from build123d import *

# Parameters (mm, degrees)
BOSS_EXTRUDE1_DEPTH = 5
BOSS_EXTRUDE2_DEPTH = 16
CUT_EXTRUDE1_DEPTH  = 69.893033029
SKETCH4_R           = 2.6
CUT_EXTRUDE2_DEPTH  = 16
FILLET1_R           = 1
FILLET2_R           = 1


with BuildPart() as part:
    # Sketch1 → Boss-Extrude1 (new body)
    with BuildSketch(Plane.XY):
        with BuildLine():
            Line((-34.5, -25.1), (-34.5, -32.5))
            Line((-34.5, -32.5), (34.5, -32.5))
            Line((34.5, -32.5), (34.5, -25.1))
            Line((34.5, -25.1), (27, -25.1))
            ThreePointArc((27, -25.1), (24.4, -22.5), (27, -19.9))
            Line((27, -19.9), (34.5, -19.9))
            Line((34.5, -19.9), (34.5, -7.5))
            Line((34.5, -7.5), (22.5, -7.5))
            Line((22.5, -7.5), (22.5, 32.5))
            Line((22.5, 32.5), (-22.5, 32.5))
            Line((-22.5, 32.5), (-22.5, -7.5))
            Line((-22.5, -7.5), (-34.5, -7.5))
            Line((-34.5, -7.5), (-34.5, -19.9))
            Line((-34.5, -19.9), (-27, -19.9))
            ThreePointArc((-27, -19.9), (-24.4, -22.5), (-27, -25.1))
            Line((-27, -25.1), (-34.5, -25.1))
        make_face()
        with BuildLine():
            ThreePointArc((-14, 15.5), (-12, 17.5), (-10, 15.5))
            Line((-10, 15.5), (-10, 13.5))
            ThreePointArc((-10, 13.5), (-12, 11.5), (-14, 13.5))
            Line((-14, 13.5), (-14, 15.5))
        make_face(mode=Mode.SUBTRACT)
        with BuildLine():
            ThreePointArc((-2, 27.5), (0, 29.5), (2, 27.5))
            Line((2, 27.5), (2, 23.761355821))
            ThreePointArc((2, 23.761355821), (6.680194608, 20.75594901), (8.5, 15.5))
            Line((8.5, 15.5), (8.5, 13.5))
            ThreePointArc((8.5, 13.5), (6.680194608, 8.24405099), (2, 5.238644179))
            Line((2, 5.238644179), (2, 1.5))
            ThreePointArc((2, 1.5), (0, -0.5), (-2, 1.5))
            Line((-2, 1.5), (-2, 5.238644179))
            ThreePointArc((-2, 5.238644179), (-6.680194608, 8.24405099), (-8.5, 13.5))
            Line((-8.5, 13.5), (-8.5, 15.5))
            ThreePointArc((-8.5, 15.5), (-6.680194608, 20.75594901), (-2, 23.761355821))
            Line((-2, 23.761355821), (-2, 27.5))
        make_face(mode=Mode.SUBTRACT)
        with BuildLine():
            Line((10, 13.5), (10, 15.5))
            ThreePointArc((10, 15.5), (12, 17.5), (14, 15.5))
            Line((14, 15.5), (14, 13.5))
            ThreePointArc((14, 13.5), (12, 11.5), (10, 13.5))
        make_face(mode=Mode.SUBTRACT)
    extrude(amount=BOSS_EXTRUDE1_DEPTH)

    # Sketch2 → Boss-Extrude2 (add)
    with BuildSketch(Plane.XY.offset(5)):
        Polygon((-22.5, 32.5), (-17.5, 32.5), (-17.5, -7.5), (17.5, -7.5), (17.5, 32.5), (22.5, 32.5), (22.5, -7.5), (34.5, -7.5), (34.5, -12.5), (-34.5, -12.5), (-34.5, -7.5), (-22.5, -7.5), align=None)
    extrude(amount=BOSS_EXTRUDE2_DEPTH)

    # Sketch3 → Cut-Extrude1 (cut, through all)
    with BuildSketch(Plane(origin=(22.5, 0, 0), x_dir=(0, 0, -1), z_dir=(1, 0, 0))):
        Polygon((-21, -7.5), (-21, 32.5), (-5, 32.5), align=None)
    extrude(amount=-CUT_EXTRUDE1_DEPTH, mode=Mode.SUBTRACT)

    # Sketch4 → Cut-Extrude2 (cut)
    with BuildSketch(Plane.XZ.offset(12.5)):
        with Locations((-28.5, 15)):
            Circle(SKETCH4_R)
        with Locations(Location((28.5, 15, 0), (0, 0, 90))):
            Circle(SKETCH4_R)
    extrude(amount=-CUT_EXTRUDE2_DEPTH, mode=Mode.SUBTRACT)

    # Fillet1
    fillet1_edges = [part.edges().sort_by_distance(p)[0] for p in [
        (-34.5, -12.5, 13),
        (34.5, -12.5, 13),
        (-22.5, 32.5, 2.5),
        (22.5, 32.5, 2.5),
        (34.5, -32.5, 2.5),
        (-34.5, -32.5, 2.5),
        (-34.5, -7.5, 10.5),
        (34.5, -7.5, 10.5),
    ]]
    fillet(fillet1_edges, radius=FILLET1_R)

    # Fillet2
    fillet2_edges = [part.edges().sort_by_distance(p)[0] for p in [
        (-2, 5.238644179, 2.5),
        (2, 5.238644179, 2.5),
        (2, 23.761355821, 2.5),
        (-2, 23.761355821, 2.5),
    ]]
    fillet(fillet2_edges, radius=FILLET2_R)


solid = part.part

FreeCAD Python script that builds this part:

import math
import FreeCAD as App
import Part
import Sketcher

V = App.Vector
Q = App.Units.Quantity


def edges_at(feature, points):
    """Names of the edges that pass closest to the given points."""
    edges = feature.Shape.Edges
    near = lambda p: min(range(len(edges)), key=lambda i: edges[i].distToShape(Part.Vertex(*p))[0])
    return sorted({f"Edge{near(p) + 1}" for p in points})

doc = App.newDocument("Part")
body = doc.addObject("PartDesign::Body", "Body")

# Sketch on XY plane
sketch1 = body.newObject("Sketcher::SketchObject", "Sketch")
sketch1.AttachmentSupport = (doc.getObject("XY_Plane"), [""])
sketch1.MapMode = "FlatFace"
sketch1.addGeometry([
    Part.LineSegment(V(-34.5, -25.1, 0), V(-34.5, -32.5, 0)),  # 0
    Part.LineSegment(V(-34.5, -32.5, 0), V(34.5, -32.5, 0)),  # 1
    Part.LineSegment(V(34.5, -32.5, 0), V(34.5, -25.1, 0)),  # 2
    Part.LineSegment(V(34.5, -25.1, 0), V(27, -25.1, 0)),  # 3
    Part.ArcOfCircle(Part.Circle(V(27, -22.5, 0), V(0, 0, 1), 2.6), math.radians(90), math.radians(270)),  # 4
    Part.LineSegment(V(27, -19.9, 0), V(34.5, -19.9, 0)),  # 5
    Part.LineSegment(V(34.5, -19.9, 0), V(34.5, -7.5, 0)),  # 6
    Part.LineSegment(V(34.5, -7.5, 0), V(22.5, -7.5, 0)),  # 7
    Part.LineSegment(V(22.5, -7.5, 0), V(22.5, 32.5, 0)),  # 8
    Part.LineSegment(V(22.5, 32.5, 0), V(-22.5, 32.5, 0)),  # 9
    Part.LineSegment(V(-22.5, 32.5, 0), V(-22.5, -7.5, 0)),  # 10
    Part.LineSegment(V(-22.5, -7.5, 0), V(-34.5, -7.5, 0)),  # 11
    Part.LineSegment(V(-34.5, -7.5, 0), V(-34.5, -19.9, 0)),  # 12
    Part.LineSegment(V(-34.5, -19.9, 0), V(-27, -19.9, 0)),  # 13
    Part.ArcOfCircle(Part.Circle(V(-27, -22.5, 0), V(0, 0, 1), 2.6), math.radians(-90), math.radians(90)),  # 14
    Part.LineSegment(V(-27, -25.1, 0), V(-34.5, -25.1, 0)),  # 15
    Part.LineSegment(V(-14, 13.5, 0), V(-14, 15.5, 0)),  # 16
    Part.ArcOfCircle(Part.Circle(V(-12, 15.5, 0), V(0, 0, 1), 2), math.radians(0), math.radians(180)),  # 17
    Part.LineSegment(V(-10, 15.5, 0), V(-10, 13.5, 0)),  # 18
    Part.ArcOfCircle(Part.Circle(V(-12, 13.5, 0), V(0, 0, 1), 2), math.radians(180), math.radians(360)),  # 19
    Part.LineSegment(V(-2, 23.8, 0), V(-2, 27.5, 0)),  # 20
    Part.ArcOfCircle(Part.Circle(V(0, 27.5, 0), V(0, 0, 1), 2), math.radians(0), math.radians(180)),  # 21
    Part.LineSegment(V(2, 27.5, 0), V(2, 23.8, 0)),  # 22
    Part.ArcOfCircle(Part.Circle(V(0, 15.5, 0), V(0, 0, 1), 8.5), math.radians(0), math.radians(76)),  # 23
    Part.LineSegment(V(8.5, 15.5, 0), V(8.5, 13.5, 0)),  # 24
    Part.ArcOfCircle(Part.Circle(V(0, 13.5, 0), V(0, 0, 1), 8.5), math.radians(-76), math.radians(0)),  # 25
    Part.LineSegment(V(2, 5.2, 0), V(2, 1.5, 0)),  # 26
    Part.ArcOfCircle(Part.Circle(V(0, 1.5, 0), V(0, 0, 1), 2), math.radians(180), math.radians(360)),  # 27
    Part.LineSegment(V(-2, 1.5, 0), V(-2, 5.2, 0)),  # 28
    Part.ArcOfCircle(Part.Circle(V(0, 13.5, 0), V(0, 0, 1), 8.5), math.radians(-180), math.radians(-104)),  # 29
    Part.LineSegment(V(-8.5, 13.5, 0), V(-8.5, 15.5, 0)),  # 30
    Part.ArcOfCircle(Part.Circle(V(0, 15.5, 0), V(0, 0, 1), 8.5), math.radians(104), math.radians(180)),  # 31
    Part.ArcOfCircle(Part.Circle(V(12, 13.5, 0), V(0, 0, 1), 2), math.radians(180), math.radians(360)),  # 32
    Part.LineSegment(V(10, 13.5, 0), V(10, 15.5, 0)),  # 33
    Part.ArcOfCircle(Part.Circle(V(12, 15.5, 0), V(0, 0, 1), 2), math.radians(0), math.radians(180)),  # 34
    Part.LineSegment(V(14, 15.5, 0), V(14, 13.5, 0)),  # 35
], False)
sketch1.addConstraint([
    Sketcher.Constraint("Coincident", 0, 2, 1, 1),
    Sketcher.Constraint("Coincident", 1, 2, 2, 1),
    Sketcher.Constraint("Coincident", 2, 2, 3, 1),
    Sketcher.Constraint("Tangent", 3, 2, 4, 2),
    Sketcher.Constraint("Tangent", 4, 1, 5, 1),
    Sketcher.Constraint("Coincident", 5, 2, 6, 1),
    Sketcher.Constraint("Coincident", 6, 2, 7, 1),
    Sketcher.Constraint("Coincident", 7, 2, 8, 1),
    Sketcher.Constraint("Coincident", 8, 2, 9, 1),
    Sketcher.Constraint("Coincident", 9, 2, 10, 1),
    Sketcher.Constraint("Coincident", 10, 2, 11, 1),
    Sketcher.Constraint("Coincident", 11, 2, 12, 1),
    Sketcher.Constraint("Coincident", 12, 2, 13, 1),
    Sketcher.Constraint("Tangent", 13, 2, 14, 2),
    Sketcher.Constraint("Tangent", 14, 1, 15, 1),
    Sketcher.Constraint("Coincident", 15, 2, 0, 1),
    Sketcher.Constraint("Tangent", 16, 2, 17, 2),
    Sketcher.Constraint("Tangent", 17, 1, 18, 1),
    Sketcher.Constraint("Tangent", 18, 2, 19, 2),
    Sketcher.Constraint("Tangent", 19, 1, 16, 1),
    Sketcher.Constraint("Tangent", 20, 2, 21, 2),
    Sketcher.Constraint("Tangent", 21, 1, 22, 1),
    Sketcher.Constraint("Coincident", 22, 2, 23, 2),
    Sketcher.Constraint("Tangent", 23, 1, 24, 1),
    Sketcher.Constraint("Tangent", 24, 2, 25, 2),
    Sketcher.Constraint("Coincident", 25, 1, 26, 1),
    Sketcher.Constraint("Tangent", 26, 2, 27, 2),
    Sketcher.Constraint("Tangent", 27, 1, 28, 1),
    Sketcher.Constraint("Coincident", 28, 2, 29, 2),
    Sketcher.Constraint("Tangent", 29, 1, 30, 1),
    Sketcher.Constraint("Tangent", 30, 2, 31, 2),
    Sketcher.Constraint("Coincident", 31, 1, 20, 1),
    Sketcher.Constraint("Tangent", 32, 1, 33, 1),
    Sketcher.Constraint("Tangent", 33, 2, 34, 2),
    Sketcher.Constraint("Tangent", 34, 1, 35, 1),
    Sketcher.Constraint("Tangent", 35, 2, 32, 2),
    Sketcher.Constraint("Vertical", 0),
    Sketcher.Constraint("Horizontal", 1),
    Sketcher.Constraint("Vertical", 2),
    Sketcher.Constraint("Horizontal", 3),
    Sketcher.Constraint("Horizontal", 5),
    Sketcher.Constraint("Vertical", 6),
    Sketcher.Constraint("Horizontal", 7),
    Sketcher.Constraint("Vertical", 8),
    Sketcher.Constraint("Horizontal", 9),
    Sketcher.Constraint("Vertical", 10),
    Sketcher.Constraint("Horizontal", 11),
    Sketcher.Constraint("Vertical", 12),
    Sketcher.Constraint("Horizontal", 13),
    Sketcher.Constraint("Horizontal", 15),
    Sketcher.Constraint("Vertical", 16),
    Sketcher.Constraint("Vertical", 18),
    Sketcher.Constraint("Vertical", 20),
    Sketcher.Constraint("Vertical", 22),
    Sketcher.Constraint("Vertical", 24),
    Sketcher.Constraint("Vertical", 26),
    Sketcher.Constraint("Vertical", 28),
    Sketcher.Constraint("Vertical", 30),
    Sketcher.Constraint("Vertical", 33),
    Sketcher.Constraint("Vertical", 35),
    Sketcher.Constraint("Coincident", 29, 3, 25, 3),
    Sketcher.Constraint("Coincident", 31, 3, 23, 3),
    Sketcher.Constraint("Equal", 4, 14),
    Sketcher.Constraint("Equal", 19, 21),
    Sketcher.Constraint("Equal", 23, 25),
    Sketcher.Constraint("Equal", 21, 27),
    Sketcher.Constraint("Equal", 25, 29),
    Sketcher.Constraint("Equal", 27, 32),
    Sketcher.Constraint("Symmetric", 4, 3, 14, 3, -2),
    Sketcher.Constraint("Symmetric", 19, 3, 32, 3, -2),
    Sketcher.Constraint("Symmetric", 7, 2, 10, 2, -2),
    Sketcher.Constraint("Symmetric", 25, 1, 28, 2, -2),
    Sketcher.Constraint("PointOnObject", 21, 3, -2),
    Sketcher.Constraint("Horizontal", 17, 3, 23, 3),
    Sketcher.Constraint("Horizontal", 19, 3, 25, 3),
    Sketcher.Constraint("Horizontal", 31, 3, 34, 3),
    Sketcher.Constraint("Vertical", 2, 2, 5, 2),
    Sketcher.Constraint("Vertical", 0, 2, 11, 2),
    Sketcher.Constraint("Equal", 7, 11),
    Sketcher.Constraint("Equal", 22, 26),
    Sketcher.Constraint("Radius", 17, Q("2 mm")),
    Sketcher.Constraint("Radius", 4, Q("2.6 mm")),
    Sketcher.Constraint("Radius", 23, Q("8.5 mm")),
    Sketcher.Constraint("DistanceX", 1, 1, 1, 2, Q("69 mm")),
    Sketcher.Constraint("DistanceX", 7, 2, 7, 1, Q("12 mm")),
    Sketcher.Constraint("DistanceY", 8, 1, 8, 2, Q("40 mm")),
    Sketcher.Constraint("DistanceY", 16, 1, 16, 2, Q("2 mm")),
    Sketcher.Constraint("DistanceX", 3, 2, 3, 1, Q("7.5 mm")),
    Sketcher.Constraint("DistanceY", 0, 2, 0, 1, Q("7.4 mm")),
    Sketcher.Constraint("DistanceY", 6, 1, 6, 2, Q("12.4 mm")),
    Sketcher.Constraint("DistanceX", 17, 3, -1, 1, Q("12 mm")),
    Sketcher.Constraint("DistanceY", 14, 3, 17, 3, Q("38 mm")),
    Sketcher.Constraint("DistanceY", 17, 3, 21, 3, Q("12 mm")),
    Sketcher.Constraint("DistanceY", 4, 3, -1, 1, Q("22.5 mm")),
])
pad1 = body.newObject("PartDesign::Pad", "Pad")
pad1.Profile = sketch1
pad1.Length = 5

# Sketch on XY plane
sketch2 = body.newObject("Sketcher::SketchObject", "Sketch001")
sketch2.AttachmentSupport = (doc.getObject("XY_Plane"), [""])
sketch2.MapMode = "FlatFace"
sketch2.AttachmentOffset = App.Placement(V(0, 0, 5), App.Rotation())
sketch2.addGeometry([
    Part.LineSegment(V(-18, 32, 0), V(-22, 32, 0)),  # 0
    Part.LineSegment(V(-22, 32, 0), V(-22, -8, 0)),  # 1
    Part.LineSegment(V(-22, -8, 0), V(-34, -8, 0)),  # 2
    Part.LineSegment(V(-34, -8, 0), V(-34, -12, 0)),  # 3
    Part.LineSegment(V(-34, -12, 0), V(34, -12, 0)),  # 4
    Part.LineSegment(V(34, -12, 0), V(34, -8, 0)),  # 5
    Part.LineSegment(V(34, -8, 0), V(22, -8, 0)),  # 6
    Part.LineSegment(V(22, -8, 0), V(22, 32, 0)),  # 7
    Part.LineSegment(V(22, 32, 0), V(18, 32, 0)),  # 8
    Part.LineSegment(V(18, 32, 0), V(18, -8, 0)),  # 9
    Part.LineSegment(V(18, -8, 0), V(-18, -8, 0)),  # 10
    Part.LineSegment(V(-18, -8, 0), V(-18, 32, 0)),  # 11
], False)
sketch2.addConstraint([
    Sketcher.Constraint("Coincident", 0, 2, 1, 1),
    Sketcher.Constraint("Coincident", 1, 2, 2, 1),
    Sketcher.Constraint("Coincident", 2, 2, 3, 1),
    Sketcher.Constraint("Coincident", 3, 2, 4, 1),
    Sketcher.Constraint("Coincident", 4, 2, 5, 1),
    Sketcher.Constraint("Coincident", 5, 2, 6, 1),
    Sketcher.Constraint("Coincident", 6, 2, 7, 1),
    Sketcher.Constraint("Coincident", 7, 2, 8, 1),
    Sketcher.Constraint("Coincident", 8, 2, 9, 1),
    Sketcher.Constraint("Coincident", 9, 2, 10, 1),
    Sketcher.Constraint("Coincident", 10, 2, 11, 1),
    Sketcher.Constraint("Coincident", 11, 2, 0, 1),
    Sketcher.Constraint("Horizontal", 0),
    Sketcher.Constraint("Vertical", 1),
    Sketcher.Constraint("Horizontal", 2),
    Sketcher.Constraint("Vertical", 3),
    Sketcher.Constraint("Horizontal", 4),
    Sketcher.Constraint("Vertical", 5),
    Sketcher.Constraint("Horizontal", 6),
    Sketcher.Constraint("Vertical", 7),
    Sketcher.Constraint("Horizontal", 8),
    Sketcher.Constraint("Vertical", 9),
    Sketcher.Constraint("Horizontal", 10),
    Sketcher.Constraint("Vertical", 11),
    Sketcher.Constraint("Symmetric", 2, 2, 5, 2, -2),
    Sketcher.Constraint("Symmetric", 0, 2, 7, 2, -2),
    Sketcher.Constraint("Horizontal", 6, 2, 9, 2),
    Sketcher.Constraint("Equal", 0, 8),
    Sketcher.Constraint("Equal", 8, 3),
    Sketcher.Constraint("DistanceX", 0, 2, 0, 1, Q("5 mm")),
    Sketcher.Constraint("DistanceX", 2, 2, 2, 1, Q("12 mm")),
    Sketcher.Constraint("DistanceX", 4, 1, 4, 2, Q("69 mm")),
    Sketcher.Constraint("DistanceY", 1, 2, 1, 1, Q("40 mm")),
    Sketcher.Constraint("DistanceY", -1, 1, 0, 2, Q("32.5 mm")),
])
pad2 = body.newObject("PartDesign::Pad", "Pad001")
pad2.Profile = sketch2
pad2.Length = 16

# Sketch on YZ plane
sketch3 = body.newObject("Sketcher::SketchObject", "Sketch002")
sketch3.AttachmentSupport = (doc.getObject("YZ_Plane"), [""])
sketch3.MapMode = "FlatFace"
sketch3.AttachmentOffset = App.Placement(V(0, 0, 22.5), App.Rotation())
sketch3.addGeometry([
    Part.LineSegment(V(32, 21, 0), V(-8, 21, 0)),
    Part.LineSegment(V(-8, 21, 0), V(32, 5, 0)),
    Part.LineSegment(V(32, 5, 0), V(32, 21, 0)),
], False)
sketch3.addConstraint([
    Sketcher.Constraint("Coincident", 0, 2, 1, 1),
    Sketcher.Constraint("Coincident", 1, 2, 2, 1),
    Sketcher.Constraint("Coincident", 2, 2, 0, 1),
    Sketcher.Constraint("Horizontal", 0),
    Sketcher.Constraint("Vertical", 2),
    Sketcher.Constraint("DistanceX", 0, 2, 0, 1, Q("40 mm")),
    Sketcher.Constraint("DistanceY", 2, 1, 2, 2, Q("16 mm")),
    Sketcher.Constraint("DistanceY", -1, 1, 0, 2, Q("21 mm")),
    Sketcher.Constraint("DistanceX", 0, 2, -1, 1, Q("7.5 mm")),
])
pocket1 = body.newObject("PartDesign::Pocket", "Pocket")
pocket1.Profile = sketch3
pocket1.Type = "ThroughAll"

# Sketch on XZ plane
sketch4 = body.newObject("Sketcher::SketchObject", "Sketch003")
sketch4.AttachmentSupport = (doc.getObject("XZ_Plane"), [""])
sketch4.MapMode = "FlatFace"
sketch4.AttachmentOffset = App.Placement(V(0, 0, 12.5), App.Rotation())
sketch4.addGeometry([
    Part.Circle(V(-28.5, 15, 0), V(0, 0, 1), 2.6),
    Part.Circle(V(28.5, 15, 0), V(0, 0, 1), 2.6),
], False)
sketch4.addConstraint([
    Sketcher.Constraint("Equal", 0, 1),
    Sketcher.Constraint("Symmetric", 0, 3, 1, 3, -2),
    Sketcher.Constraint("Diameter", 0, Q("5.2 mm")),
    Sketcher.Constraint("DistanceY", -1, 1, 0, 3, Q("15 mm")),
    Sketcher.Constraint("DistanceX", 0, 3, 1, 3, Q("57 mm")),
])
pocket2 = body.newObject("PartDesign::Pocket", "Pocket001")
pocket2.Profile = sketch4
pocket2.Length = 16
doc.recompute()

fillet = body.newObject("PartDesign::Fillet", "Fillet")
fillet.Base = (pocket2, edges_at(pocket2, [
    (-34.5, -12.5, 13),
    (34.5, -12.5, 13),
    (-22.5, 32.5, 2.5),
    (22.5, 32.5, 2.5),
    (34.5, -32.5, 2.5),
    (-34.5, -32.5, 2.5),
    (-34.5, -7.5, 10.5),
    (34.5, -7.5, 10.5),
]))
fillet.Radius = 1
doc.recompute()

fillet2 = body.newObject("PartDesign::Fillet", "Fillet001")
fillet2.Base = (fillet, edges_at(fillet, [
    (-2, 5.239, 2.5),
    (2, 5.239, 2.5),
    (2, 23.761, 2.5),
    (-2, 23.761, 2.5),
]))
fillet2.Radius = 1

doc.recompute()
